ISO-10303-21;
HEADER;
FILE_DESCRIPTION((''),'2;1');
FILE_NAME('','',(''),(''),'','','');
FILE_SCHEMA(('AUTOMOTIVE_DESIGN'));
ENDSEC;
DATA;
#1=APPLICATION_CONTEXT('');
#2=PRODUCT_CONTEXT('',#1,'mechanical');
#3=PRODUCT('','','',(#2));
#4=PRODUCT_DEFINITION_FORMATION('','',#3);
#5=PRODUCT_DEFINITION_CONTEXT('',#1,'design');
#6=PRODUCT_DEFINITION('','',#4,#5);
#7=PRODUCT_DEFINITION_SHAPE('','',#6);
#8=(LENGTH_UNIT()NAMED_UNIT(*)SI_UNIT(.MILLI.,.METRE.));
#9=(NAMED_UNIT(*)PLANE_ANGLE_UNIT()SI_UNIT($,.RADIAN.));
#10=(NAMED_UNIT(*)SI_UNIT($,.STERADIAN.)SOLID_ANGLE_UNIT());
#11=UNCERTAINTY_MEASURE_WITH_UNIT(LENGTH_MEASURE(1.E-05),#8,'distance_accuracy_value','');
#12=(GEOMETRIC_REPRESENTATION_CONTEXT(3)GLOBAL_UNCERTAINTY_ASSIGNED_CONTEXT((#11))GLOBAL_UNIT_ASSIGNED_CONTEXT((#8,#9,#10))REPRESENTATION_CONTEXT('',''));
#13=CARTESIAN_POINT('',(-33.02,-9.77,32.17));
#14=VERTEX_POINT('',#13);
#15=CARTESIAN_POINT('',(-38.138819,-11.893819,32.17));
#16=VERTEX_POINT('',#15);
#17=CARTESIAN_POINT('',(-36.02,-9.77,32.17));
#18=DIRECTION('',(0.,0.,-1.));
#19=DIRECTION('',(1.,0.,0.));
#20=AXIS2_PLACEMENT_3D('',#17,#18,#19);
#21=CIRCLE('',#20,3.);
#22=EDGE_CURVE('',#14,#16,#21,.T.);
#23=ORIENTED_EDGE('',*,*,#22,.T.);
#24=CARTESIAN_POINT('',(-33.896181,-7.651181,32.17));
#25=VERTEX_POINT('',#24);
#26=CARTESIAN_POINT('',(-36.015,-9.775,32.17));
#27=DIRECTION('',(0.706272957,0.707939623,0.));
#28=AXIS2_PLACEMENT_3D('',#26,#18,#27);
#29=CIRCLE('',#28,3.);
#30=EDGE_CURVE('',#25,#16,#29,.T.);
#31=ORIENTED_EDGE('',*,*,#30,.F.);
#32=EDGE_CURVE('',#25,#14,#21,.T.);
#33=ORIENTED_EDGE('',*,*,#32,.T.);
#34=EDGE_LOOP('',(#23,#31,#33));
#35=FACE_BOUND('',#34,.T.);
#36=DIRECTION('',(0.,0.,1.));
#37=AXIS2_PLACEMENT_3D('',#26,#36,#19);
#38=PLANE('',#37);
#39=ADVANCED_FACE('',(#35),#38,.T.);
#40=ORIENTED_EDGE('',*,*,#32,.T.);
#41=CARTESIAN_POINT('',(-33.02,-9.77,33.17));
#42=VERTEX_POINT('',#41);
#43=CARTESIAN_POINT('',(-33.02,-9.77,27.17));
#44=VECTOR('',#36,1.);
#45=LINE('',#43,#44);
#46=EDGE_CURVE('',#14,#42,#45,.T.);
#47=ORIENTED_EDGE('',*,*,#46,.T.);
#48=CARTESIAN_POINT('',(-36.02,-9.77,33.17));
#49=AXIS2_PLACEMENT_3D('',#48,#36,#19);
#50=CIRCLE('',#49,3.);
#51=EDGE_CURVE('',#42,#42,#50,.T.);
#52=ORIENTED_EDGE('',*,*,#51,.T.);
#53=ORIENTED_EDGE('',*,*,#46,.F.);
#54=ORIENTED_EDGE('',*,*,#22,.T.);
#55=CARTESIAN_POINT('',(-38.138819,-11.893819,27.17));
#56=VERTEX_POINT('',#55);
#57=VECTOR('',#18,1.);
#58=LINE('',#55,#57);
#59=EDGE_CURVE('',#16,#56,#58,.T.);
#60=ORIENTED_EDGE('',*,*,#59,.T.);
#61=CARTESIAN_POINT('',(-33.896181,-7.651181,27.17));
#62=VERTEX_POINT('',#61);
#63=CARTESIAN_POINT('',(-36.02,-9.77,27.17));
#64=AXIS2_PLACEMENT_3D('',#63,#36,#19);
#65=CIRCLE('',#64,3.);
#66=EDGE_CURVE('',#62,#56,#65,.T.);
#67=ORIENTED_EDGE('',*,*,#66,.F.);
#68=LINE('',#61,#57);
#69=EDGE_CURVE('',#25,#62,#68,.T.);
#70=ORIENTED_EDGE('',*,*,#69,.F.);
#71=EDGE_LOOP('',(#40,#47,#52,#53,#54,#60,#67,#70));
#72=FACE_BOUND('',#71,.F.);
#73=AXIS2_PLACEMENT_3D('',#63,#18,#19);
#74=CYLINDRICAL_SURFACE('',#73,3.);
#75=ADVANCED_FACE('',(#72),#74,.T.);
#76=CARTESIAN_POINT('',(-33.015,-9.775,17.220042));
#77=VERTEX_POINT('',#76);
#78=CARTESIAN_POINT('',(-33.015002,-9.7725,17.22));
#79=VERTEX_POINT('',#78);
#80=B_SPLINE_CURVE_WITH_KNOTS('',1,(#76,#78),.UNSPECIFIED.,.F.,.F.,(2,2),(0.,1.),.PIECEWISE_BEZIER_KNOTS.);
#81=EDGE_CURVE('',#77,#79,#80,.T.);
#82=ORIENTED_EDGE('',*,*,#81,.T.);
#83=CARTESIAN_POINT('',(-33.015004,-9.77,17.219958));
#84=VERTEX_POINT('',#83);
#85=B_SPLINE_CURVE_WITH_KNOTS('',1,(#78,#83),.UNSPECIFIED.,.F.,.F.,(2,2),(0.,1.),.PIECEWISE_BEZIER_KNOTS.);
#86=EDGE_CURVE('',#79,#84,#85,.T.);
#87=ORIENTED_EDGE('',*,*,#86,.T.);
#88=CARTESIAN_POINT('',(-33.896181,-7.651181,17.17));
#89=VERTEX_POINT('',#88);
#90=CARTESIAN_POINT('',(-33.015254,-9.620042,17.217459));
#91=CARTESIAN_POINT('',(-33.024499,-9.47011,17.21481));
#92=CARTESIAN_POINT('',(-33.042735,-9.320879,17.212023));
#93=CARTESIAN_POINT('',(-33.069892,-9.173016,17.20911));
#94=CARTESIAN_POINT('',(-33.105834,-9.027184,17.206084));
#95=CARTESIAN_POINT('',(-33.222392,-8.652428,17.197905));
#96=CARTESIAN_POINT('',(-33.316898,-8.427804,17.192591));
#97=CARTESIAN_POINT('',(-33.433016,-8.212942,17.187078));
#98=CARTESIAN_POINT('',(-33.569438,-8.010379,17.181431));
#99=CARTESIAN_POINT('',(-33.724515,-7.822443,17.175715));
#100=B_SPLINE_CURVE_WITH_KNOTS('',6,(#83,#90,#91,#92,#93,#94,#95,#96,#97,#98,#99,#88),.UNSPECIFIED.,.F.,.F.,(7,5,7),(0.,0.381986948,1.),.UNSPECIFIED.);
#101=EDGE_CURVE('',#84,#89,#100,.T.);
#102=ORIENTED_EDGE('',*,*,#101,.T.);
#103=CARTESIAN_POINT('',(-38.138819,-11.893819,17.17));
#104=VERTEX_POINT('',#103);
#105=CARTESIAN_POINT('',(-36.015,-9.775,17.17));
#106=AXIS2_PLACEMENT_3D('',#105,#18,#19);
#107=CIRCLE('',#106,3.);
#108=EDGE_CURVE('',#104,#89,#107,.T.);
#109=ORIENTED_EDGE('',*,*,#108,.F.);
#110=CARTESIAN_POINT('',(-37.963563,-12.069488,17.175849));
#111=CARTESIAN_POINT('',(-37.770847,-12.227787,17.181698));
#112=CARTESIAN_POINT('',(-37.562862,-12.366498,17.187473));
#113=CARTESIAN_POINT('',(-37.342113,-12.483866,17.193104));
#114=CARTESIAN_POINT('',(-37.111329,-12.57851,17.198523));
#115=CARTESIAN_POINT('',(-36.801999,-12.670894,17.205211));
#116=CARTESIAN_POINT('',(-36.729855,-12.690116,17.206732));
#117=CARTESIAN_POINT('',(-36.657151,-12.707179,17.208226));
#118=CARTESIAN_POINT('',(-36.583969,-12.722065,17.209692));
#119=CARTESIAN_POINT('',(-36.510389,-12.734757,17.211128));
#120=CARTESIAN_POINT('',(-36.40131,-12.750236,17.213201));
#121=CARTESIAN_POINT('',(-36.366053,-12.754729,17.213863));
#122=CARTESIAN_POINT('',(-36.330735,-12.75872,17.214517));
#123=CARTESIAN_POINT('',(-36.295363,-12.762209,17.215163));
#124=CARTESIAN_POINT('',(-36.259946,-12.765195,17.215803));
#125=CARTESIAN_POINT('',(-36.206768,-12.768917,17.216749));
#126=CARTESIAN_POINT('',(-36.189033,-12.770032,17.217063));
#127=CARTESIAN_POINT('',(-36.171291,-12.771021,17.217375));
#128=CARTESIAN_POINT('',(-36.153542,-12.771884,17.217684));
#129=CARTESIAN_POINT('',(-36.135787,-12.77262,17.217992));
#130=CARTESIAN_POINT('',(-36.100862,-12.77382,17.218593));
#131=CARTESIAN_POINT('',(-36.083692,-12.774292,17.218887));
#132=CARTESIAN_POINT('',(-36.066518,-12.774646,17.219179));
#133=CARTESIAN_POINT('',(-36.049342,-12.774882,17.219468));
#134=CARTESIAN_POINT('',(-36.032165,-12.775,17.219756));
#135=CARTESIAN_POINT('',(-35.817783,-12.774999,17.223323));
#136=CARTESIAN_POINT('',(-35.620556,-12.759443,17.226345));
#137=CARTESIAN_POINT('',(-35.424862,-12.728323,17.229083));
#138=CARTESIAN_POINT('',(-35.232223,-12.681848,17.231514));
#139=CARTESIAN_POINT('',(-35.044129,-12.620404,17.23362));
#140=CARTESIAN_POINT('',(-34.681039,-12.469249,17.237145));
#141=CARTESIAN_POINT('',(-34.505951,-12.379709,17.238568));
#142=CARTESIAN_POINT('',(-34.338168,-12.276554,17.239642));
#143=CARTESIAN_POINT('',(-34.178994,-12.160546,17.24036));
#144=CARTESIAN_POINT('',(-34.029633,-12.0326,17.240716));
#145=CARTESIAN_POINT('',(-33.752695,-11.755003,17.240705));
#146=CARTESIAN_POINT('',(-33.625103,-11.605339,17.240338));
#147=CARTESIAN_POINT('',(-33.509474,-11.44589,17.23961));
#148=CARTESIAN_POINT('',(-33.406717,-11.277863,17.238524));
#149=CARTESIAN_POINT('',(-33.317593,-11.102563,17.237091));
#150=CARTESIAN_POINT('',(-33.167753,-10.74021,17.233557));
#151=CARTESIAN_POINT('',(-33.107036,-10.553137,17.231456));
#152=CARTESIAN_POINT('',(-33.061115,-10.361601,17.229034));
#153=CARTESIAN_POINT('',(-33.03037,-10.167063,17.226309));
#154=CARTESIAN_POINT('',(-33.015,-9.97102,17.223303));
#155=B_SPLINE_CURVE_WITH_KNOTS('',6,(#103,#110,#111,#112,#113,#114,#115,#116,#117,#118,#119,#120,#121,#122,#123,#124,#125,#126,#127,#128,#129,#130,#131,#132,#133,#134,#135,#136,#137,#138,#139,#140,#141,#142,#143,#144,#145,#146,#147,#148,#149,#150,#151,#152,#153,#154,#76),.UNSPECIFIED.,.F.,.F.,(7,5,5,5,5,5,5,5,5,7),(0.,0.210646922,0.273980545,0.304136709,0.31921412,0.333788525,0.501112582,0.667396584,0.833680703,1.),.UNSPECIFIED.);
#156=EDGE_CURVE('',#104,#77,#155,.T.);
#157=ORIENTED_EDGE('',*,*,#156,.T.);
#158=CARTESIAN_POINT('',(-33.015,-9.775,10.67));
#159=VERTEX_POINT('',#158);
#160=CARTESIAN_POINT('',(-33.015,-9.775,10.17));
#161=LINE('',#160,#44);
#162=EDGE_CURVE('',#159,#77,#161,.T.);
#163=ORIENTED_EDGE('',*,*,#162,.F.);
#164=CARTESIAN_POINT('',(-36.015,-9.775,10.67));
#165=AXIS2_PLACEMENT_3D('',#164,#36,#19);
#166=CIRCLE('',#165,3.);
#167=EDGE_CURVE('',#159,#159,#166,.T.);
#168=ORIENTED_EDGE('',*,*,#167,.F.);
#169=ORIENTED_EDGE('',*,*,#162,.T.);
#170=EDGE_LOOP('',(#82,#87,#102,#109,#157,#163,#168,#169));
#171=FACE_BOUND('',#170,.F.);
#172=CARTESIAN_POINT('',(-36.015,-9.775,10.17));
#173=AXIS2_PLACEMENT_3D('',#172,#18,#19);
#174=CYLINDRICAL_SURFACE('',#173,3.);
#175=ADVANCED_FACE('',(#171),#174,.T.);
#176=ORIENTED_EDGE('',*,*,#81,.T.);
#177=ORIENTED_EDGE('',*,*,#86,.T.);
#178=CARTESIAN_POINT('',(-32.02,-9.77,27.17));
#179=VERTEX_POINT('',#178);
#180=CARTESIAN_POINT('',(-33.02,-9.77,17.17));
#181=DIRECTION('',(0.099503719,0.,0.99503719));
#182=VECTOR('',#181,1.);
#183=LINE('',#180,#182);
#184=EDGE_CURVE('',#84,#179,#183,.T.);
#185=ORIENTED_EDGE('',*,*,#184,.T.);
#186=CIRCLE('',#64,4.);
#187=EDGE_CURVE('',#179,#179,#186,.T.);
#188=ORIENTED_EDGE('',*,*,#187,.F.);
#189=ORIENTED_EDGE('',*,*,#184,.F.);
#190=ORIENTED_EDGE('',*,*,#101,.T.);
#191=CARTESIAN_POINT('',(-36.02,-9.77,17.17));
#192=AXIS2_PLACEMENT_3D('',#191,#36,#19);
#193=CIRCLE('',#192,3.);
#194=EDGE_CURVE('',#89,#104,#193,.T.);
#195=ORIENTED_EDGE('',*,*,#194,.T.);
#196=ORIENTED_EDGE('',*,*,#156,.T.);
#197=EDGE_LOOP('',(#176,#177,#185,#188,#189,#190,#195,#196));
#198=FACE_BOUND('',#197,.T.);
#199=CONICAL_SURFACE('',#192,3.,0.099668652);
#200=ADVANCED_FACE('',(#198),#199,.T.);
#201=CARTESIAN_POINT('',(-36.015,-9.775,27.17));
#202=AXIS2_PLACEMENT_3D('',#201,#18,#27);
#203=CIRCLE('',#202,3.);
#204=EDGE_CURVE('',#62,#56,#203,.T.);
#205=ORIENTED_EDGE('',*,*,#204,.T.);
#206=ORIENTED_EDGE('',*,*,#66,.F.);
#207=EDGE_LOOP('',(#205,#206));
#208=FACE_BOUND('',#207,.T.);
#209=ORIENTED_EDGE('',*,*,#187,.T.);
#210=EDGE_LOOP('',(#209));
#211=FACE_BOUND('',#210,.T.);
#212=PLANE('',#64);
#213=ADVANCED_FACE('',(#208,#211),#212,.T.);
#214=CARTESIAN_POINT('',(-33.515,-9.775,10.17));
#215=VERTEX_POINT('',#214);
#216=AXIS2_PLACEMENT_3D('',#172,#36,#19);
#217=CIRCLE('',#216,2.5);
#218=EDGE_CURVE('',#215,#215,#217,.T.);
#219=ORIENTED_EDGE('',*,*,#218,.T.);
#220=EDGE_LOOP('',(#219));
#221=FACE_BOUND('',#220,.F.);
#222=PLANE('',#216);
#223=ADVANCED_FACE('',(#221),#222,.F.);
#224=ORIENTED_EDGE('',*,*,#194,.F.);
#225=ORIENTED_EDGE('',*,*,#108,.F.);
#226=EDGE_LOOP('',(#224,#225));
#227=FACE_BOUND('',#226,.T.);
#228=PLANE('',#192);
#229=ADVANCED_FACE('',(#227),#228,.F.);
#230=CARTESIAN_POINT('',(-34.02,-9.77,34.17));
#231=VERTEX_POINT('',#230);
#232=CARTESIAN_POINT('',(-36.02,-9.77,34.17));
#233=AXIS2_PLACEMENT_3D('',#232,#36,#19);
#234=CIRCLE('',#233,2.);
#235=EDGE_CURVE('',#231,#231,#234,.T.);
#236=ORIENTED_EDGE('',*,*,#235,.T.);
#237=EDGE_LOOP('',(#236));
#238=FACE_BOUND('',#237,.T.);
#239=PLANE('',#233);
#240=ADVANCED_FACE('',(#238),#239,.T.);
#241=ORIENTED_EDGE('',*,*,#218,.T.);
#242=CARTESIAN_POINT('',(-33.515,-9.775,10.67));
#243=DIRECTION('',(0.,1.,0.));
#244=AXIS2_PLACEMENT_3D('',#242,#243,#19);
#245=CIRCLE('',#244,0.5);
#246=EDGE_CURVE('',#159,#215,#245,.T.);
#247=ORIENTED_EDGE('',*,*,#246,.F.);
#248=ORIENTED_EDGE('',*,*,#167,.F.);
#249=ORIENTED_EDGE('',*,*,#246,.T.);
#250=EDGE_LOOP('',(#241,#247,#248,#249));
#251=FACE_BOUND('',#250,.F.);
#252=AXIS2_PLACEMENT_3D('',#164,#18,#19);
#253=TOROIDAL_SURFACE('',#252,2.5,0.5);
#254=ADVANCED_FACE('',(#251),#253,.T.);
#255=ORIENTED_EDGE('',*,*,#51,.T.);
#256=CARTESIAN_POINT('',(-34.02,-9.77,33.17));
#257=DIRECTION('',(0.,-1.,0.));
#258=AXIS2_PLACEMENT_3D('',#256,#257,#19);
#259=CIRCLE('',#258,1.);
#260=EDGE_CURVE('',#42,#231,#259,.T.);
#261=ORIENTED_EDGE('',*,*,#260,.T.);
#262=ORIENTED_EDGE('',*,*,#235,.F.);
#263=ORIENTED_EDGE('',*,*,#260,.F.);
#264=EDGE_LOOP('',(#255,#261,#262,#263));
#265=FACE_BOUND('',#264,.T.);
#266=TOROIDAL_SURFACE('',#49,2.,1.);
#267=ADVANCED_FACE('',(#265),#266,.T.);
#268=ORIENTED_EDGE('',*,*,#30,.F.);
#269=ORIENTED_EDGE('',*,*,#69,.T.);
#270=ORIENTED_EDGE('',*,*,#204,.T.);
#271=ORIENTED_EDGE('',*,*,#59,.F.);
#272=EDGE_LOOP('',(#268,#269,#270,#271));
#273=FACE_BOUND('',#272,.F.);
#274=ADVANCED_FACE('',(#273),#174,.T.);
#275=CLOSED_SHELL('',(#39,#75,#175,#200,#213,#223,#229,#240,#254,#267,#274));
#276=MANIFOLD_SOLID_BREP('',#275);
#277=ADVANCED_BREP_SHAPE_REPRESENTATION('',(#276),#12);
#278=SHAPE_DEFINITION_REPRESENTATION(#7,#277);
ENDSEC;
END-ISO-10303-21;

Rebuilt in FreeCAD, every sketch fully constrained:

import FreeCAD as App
import Part
import Sketcher

V = App.Vector
Q = App.Units.Quantity


def edges_at(feature, points):
    """Names of the edges that pass closest to the given points."""
    edges = feature.Shape.Edges
    near = lambda p: min(range(len(edges)), key=lambda i: edges[i].distToShape(Part.Vertex(*p))[0])
    return sorted({f"Edge{near(p) + 1}" for p in points})

doc = App.newDocument("Part")
body = doc.addObject("PartDesign::Body", "Body")

# Sketch on XY plane
sketch1 = body.newObject("Sketcher::SketchObject", "Sketch")
sketch1.AttachmentSupport = (doc.getObject("XY_Plane"), [""])
sketch1.MapMode = "FlatFace"
sketch1.AttachmentOffset = App.Placement(V(0, 0, 10.17), App.Rotation())
sketch1.addGeometry(Part.Circle(V(-43.6, 0.4, 0), V(0, 0, 1), 3), False)
sketch1.addConstraint(Sketcher.Constraint("Diameter", 0, Q("6 mm")))
sketch1.addConstraint(Sketcher.Constraint("DistanceX", 0, 3, -1, 1, Q("43.635 mm")))
sketch1.addConstraint(Sketcher.Constraint("DistanceY", -1, 1, 0, 3, Q("0.385 mm")))
pad1 = body.newObject("PartDesign::Pad", "Pad")
pad1.Profile = sketch1
pad1.Length = 22
doc.recompute()

fillet = body.newObject("PartDesign::Fillet", "Fillet")
fillet.Base = (pad1, edges_at(pad1, [(-46.635, 0.385, 10.17)]))
fillet.Radius = 0.5
body2 = doc.addObject("PartDesign::Body", "Body001")

# Sketch on XZ plane
sketch2 = body2.newObject("Sketcher::SketchObject", "Sketch001")
sketch2.AttachmentSupport = (doc.getObject("XZ_Plane001"), [""])
sketch2.MapMode = "FlatFace"
sketch2.AttachmentOffset = App.Placement(V(0, 0, -0.39), App.Rotation())
sketch2.addGeometry(Part.LineSegment(V(-43.6, 17.2, 0), V(-40.6, 17.2, 0)), False)
sketch2.addGeometry(Part.LineSegment(V(-40.6, 17.2, 0), V(-39.6, 27.2, 0)), False)
sketch2.addGeometry(Part.LineSegment(V(-39.6, 27.2, 0), V(-43.6, 27.2, 0)), False)
sketch2.addGeometry(Part.LineSegment(V(-43.6, 27.2, 0), V(-43.6, 17.2, 0)), False)
sketch2.addGeometry(Part.LineSegment(V(-43.6, 17.2, 0), V(-43.6, 27.2, 0)), True)  # axis
sketch2.addConstraint(Sketcher.Constraint("Coincident", 0, 2, 1, 1))
sketch2.addConstraint(Sketcher.Constraint("Coincident", 1, 2, 2, 1))
sketch2.addConstraint(Sketcher.Constraint("Coincident", 2, 2, 3, 1))
sketch2.addConstraint(Sketcher.Constraint("Coincident", 3, 2, 0, 1))
sketch2.addConstraint(Sketcher.Constraint("Horizontal", 0))
sketch2.addConstraint(Sketcher.Constraint("Horizontal", 2))
sketch2.addConstraint(Sketcher.Constraint("Vertical", 3))
sketch2.addConstraint(Sketcher.Constraint("Vertical", 4))
sketch2.addConstraint(Sketcher.Constraint("Coincident", 4, 1, 3, 2))
sketch2.addConstraint(Sketcher.Constraint("Horizontal", 1, 2, 4, 2))
sketch2.addConstraint(Sketcher.Constraint("DistanceX", 0, 1, 0, 2, Q("3 mm")))
sketch2.addConstraint(Sketcher.Constraint("DistanceX", 2, 2, 2, 1, Q("4 mm")))
sketch2.addConstraint(Sketcher.Constraint("DistanceY", 3, 2, 3, 1, Q("10 mm")))
sketch2.addConstraint(Sketcher.Constraint("DistanceX", 0, 2, -1, 1, Q("40.64 mm")))
sketch2.addConstraint(Sketcher.Constraint("DistanceY", -1, 1, 0, 2, Q("17.17 mm")))
revolution = body2.newObject("PartDesign::Revolution", "Revolution")
revolution.Profile = sketch2
revolution.ReferenceAxis = (sketch2, ["Axis0"])
revolution.Angle = 360
body3 = doc.addObject("PartDesign::Body", "Body002")

# Sketch on XY plane
sketch3 = body3.newObject("Sketcher::SketchObject", "Sketch002")
sketch3.AttachmentSupport = (doc.getObject("XY_Plane002"), [""])
sketch3.MapMode = "FlatFace"
sketch3.AttachmentOffset = App.Placement(V(0, 0, 27.17), App.Rotation())
sketch3.addGeometry(Part.Circle(V(-43.6, 0.4, 0), V(0, 0, 1), 3), False)
sketch3.addConstraint(Sketcher.Constraint("Diameter", 0, Q("6 mm")))
sketch3.addConstraint(Sketcher.Constraint("DistanceX", 0, 3, -1, 1, Q("43.64 mm")))
sketch3.addConstraint(Sketcher.Constraint("DistanceY", -1, 1, 0, 3, Q("0.39 mm")))
pad2 = body3.newObject("PartDesign::Pad", "Pad001")
pad2.Profile = sketch3
pad2.Length = 7
doc.recompute()

fillet2 = body3.newObject("PartDesign::Fillet", "Fillet001")
fillet2.Base = (pad2, edges_at(pad2, [(-46.64, 0.39, 34.17)]))
fillet2.Radius = 1
doc.recompute()

boolean = body3.newObject("PartDesign::Boolean", "Boolean")
boolean.Type = "Fuse"
boolean.addObjects([body])
doc.recompute()

boolean2 = body3.newObject("PartDesign::Boolean", "Boolean001")
boolean2.Type = "Fuse"
boolean2.addObjects([body2])
body4 = doc.addObject("PartDesign::Body", "Body003")
doc.recompute()

body3.Placement = App.Placement(V(7.62, -10.16, 0), App.Rotation(V(0, 0, 1), 0))
boolean3 = body4.newObject("PartDesign::Boolean", "Boolean002")
boolean3.Type = "Fuse"
boolean3.addObjects([body3])

doc.recompute()
